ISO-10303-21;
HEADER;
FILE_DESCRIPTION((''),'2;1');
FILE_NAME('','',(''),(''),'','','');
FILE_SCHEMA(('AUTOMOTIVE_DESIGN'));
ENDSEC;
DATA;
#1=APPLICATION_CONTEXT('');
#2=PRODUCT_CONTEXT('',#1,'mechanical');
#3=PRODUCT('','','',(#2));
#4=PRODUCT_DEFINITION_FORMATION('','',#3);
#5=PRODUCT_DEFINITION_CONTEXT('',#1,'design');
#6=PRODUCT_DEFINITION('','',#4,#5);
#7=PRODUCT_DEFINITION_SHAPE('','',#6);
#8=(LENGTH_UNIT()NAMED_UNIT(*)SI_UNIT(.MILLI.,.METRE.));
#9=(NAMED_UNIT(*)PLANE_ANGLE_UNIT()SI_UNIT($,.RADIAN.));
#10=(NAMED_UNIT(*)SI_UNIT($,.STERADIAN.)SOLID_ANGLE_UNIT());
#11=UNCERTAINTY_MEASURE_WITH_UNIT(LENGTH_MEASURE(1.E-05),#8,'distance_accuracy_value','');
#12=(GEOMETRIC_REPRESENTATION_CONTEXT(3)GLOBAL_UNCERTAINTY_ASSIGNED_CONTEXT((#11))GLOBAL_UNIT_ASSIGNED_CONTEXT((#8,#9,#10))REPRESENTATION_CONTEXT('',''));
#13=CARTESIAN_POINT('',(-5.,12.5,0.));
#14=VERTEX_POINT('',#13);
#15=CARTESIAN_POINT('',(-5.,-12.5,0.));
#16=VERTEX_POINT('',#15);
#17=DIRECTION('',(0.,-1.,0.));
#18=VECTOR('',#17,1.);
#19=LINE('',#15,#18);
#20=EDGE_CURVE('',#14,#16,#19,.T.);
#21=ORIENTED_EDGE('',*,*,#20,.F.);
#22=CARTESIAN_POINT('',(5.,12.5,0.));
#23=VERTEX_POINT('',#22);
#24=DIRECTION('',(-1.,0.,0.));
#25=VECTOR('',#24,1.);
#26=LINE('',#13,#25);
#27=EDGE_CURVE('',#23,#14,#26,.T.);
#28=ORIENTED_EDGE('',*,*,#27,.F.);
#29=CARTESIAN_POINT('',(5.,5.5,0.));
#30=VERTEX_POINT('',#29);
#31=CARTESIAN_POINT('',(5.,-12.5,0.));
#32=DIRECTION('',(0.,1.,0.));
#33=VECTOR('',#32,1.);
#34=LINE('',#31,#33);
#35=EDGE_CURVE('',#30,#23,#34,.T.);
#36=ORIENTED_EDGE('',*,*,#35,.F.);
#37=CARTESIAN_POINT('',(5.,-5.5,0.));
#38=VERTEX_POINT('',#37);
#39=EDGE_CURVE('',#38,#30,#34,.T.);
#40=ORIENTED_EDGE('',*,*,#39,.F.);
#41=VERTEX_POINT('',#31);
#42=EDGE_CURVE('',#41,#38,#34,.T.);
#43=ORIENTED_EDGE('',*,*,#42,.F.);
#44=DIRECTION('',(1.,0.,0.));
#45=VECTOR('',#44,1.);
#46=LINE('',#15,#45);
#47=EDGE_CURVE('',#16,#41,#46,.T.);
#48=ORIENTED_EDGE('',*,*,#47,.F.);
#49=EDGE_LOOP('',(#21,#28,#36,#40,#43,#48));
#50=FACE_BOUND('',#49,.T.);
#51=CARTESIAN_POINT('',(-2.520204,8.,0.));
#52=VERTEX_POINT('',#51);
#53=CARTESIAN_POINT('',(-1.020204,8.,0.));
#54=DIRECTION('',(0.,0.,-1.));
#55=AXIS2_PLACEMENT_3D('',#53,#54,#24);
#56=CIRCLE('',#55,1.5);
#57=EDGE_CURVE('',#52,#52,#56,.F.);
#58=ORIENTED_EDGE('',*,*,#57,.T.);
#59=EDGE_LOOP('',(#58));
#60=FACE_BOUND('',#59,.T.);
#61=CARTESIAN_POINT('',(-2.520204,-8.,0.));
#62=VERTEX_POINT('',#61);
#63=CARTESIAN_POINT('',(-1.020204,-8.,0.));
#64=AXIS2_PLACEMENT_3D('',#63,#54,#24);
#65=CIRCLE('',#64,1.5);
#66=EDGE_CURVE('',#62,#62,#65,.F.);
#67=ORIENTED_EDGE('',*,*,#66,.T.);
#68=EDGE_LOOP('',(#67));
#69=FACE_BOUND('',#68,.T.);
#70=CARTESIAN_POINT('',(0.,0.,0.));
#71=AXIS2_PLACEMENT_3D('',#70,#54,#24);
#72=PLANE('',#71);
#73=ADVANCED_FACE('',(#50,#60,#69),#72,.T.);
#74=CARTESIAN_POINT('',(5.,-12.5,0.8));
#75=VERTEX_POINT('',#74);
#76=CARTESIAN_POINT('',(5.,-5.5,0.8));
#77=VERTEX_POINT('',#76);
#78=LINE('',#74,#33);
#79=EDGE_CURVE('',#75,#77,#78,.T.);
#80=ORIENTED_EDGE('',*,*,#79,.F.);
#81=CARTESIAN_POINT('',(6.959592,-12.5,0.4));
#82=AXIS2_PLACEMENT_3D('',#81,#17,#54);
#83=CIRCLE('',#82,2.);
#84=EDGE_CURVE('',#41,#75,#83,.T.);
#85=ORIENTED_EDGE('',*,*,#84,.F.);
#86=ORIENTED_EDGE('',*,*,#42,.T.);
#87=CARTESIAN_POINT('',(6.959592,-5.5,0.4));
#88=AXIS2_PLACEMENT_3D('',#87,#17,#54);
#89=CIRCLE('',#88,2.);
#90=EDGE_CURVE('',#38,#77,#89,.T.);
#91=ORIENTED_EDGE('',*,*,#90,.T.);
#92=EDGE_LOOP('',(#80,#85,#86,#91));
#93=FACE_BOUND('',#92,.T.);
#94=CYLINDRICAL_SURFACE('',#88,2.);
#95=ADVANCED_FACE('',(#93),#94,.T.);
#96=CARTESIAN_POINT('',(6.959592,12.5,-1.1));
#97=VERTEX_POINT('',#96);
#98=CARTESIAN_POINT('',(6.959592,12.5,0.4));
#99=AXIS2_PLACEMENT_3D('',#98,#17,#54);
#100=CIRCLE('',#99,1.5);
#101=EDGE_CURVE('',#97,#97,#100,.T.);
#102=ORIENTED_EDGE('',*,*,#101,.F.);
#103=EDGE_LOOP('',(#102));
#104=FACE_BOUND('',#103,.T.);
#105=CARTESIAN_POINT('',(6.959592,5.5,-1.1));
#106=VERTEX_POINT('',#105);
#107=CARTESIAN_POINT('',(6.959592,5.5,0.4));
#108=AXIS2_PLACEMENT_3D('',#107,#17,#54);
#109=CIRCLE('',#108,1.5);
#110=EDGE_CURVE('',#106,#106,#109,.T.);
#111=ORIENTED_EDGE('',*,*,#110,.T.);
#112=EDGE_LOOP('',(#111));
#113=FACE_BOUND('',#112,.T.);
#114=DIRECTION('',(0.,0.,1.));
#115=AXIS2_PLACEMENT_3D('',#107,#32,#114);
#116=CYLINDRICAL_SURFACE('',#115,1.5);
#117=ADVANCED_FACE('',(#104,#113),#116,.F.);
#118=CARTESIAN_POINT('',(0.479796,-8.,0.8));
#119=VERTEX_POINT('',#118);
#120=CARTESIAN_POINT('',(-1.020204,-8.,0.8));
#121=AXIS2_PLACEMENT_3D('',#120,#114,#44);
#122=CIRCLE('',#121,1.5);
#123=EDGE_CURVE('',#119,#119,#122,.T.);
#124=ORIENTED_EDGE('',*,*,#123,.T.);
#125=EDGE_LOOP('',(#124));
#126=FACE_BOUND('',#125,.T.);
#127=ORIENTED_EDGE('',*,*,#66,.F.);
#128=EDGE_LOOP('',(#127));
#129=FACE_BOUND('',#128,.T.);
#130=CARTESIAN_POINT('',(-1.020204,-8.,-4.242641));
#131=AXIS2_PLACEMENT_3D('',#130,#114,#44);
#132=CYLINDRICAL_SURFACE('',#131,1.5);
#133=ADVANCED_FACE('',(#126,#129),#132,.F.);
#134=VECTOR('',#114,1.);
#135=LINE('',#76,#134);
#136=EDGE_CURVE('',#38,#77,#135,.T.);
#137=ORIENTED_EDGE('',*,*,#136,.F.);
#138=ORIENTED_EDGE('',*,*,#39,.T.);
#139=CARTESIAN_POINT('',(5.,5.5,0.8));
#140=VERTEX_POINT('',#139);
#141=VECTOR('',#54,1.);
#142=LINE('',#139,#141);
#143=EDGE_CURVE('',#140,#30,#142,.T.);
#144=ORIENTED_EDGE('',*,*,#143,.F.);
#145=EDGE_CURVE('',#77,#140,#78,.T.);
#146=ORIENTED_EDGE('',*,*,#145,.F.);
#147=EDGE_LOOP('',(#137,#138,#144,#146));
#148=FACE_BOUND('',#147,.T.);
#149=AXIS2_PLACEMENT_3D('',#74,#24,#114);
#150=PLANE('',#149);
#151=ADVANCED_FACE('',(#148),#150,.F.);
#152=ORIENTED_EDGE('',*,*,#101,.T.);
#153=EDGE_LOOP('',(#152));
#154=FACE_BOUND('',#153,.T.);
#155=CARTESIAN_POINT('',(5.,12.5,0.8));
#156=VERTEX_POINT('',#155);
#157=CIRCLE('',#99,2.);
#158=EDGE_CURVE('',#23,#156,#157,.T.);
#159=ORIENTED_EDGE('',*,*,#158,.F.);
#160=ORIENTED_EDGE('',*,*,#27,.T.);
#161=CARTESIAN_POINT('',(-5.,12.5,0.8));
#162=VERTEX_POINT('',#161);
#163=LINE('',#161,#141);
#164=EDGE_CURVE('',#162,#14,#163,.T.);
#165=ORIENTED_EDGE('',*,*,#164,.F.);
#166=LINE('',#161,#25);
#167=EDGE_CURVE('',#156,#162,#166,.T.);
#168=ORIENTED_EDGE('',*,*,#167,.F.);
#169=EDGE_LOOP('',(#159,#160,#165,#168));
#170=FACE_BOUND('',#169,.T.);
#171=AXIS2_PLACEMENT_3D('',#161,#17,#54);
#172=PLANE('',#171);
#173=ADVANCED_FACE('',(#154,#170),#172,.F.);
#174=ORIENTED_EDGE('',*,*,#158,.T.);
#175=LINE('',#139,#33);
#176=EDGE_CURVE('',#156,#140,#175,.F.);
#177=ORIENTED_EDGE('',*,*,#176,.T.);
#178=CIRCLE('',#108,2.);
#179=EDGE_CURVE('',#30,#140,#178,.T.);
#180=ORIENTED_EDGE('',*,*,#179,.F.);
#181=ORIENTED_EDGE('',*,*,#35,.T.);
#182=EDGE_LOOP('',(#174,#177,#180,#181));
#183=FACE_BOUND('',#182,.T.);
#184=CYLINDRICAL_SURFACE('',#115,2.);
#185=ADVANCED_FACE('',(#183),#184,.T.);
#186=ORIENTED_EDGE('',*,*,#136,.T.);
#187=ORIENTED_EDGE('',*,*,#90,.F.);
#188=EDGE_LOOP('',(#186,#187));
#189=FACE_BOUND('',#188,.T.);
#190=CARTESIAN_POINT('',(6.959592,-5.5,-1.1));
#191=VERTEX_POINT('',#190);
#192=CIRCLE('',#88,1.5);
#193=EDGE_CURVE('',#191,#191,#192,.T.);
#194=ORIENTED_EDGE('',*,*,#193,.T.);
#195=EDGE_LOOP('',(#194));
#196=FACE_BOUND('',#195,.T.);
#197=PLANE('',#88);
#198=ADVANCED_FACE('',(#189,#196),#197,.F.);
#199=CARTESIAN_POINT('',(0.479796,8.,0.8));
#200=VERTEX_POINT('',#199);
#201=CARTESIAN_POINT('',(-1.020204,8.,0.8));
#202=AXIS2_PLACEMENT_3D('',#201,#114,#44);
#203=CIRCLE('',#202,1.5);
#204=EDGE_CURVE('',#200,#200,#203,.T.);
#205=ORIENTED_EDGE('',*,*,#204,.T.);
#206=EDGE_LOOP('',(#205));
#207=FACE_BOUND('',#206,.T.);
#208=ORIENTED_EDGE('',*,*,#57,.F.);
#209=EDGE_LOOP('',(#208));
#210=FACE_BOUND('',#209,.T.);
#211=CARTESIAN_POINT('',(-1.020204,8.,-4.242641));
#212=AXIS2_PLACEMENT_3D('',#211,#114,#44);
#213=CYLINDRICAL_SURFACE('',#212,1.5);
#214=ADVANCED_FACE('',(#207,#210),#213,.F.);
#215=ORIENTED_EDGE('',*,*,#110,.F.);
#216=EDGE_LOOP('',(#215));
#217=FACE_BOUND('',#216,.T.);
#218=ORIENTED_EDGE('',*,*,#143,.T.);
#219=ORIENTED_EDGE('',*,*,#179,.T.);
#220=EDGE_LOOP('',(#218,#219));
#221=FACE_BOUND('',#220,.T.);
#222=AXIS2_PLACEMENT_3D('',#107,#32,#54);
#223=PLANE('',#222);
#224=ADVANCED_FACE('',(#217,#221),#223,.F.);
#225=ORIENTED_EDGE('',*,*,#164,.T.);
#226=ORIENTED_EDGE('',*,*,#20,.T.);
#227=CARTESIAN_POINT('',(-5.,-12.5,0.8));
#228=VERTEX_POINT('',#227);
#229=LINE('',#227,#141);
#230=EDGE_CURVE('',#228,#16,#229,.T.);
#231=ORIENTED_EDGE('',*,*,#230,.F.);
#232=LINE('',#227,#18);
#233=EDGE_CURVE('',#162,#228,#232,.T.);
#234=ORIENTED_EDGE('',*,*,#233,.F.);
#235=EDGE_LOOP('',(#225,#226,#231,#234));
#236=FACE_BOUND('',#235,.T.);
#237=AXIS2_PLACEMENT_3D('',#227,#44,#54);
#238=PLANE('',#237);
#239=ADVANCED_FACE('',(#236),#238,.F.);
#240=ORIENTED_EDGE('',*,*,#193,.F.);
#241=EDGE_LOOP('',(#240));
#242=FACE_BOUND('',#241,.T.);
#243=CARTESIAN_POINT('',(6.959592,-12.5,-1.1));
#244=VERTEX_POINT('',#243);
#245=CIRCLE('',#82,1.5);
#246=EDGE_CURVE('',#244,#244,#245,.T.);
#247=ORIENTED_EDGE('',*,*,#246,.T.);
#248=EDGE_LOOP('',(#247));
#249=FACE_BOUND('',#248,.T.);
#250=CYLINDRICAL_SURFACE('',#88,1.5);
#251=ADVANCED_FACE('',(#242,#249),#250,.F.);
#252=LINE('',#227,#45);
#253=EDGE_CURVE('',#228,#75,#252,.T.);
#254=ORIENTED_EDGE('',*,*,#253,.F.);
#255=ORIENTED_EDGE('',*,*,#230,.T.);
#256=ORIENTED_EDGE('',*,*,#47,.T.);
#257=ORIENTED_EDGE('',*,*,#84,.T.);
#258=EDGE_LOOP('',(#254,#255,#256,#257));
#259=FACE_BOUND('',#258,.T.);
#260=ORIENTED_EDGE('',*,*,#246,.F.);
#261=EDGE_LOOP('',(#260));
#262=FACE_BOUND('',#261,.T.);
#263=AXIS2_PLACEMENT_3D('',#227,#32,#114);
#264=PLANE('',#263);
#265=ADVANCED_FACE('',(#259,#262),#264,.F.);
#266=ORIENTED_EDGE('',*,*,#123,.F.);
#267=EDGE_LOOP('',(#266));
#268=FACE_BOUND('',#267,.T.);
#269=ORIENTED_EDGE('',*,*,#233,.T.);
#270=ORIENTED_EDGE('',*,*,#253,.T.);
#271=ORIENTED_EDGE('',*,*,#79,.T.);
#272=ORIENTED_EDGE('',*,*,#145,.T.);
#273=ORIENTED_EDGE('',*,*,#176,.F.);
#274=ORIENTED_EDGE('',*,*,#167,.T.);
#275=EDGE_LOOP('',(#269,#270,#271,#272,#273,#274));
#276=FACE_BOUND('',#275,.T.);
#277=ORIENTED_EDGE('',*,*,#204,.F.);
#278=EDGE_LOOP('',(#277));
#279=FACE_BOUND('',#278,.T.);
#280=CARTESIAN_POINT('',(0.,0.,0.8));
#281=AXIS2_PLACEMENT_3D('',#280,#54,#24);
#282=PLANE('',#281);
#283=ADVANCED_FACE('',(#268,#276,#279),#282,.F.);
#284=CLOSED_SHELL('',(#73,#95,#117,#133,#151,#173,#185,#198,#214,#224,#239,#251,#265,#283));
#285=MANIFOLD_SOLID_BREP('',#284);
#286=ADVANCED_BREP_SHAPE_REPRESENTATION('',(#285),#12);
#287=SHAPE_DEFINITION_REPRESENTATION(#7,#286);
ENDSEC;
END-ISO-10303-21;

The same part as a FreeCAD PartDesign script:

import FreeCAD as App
import Part
import Sketcher
from FreeCAD import Vector

doc = App.newDocument("Part")
body = doc.addObject("PartDesign::Body", "Body")

# Sketch on XY plane
sketch1 = body.newObject("Sketcher::SketchObject", "Sketch")
sketch1.AttachmentSupport = (doc.getObject("XY_Plane"), [""])
sketch1.MapMode = "FlatFace"
sketch1.addGeometry(Part.LineSegment(Vector(-5, 12, 0), Vector(-5, -12, 0)), False)
sketch1.addGeometry(Part.LineSegment(Vector(-5, -12, 0), Vector(5, -12, 0)), False)
sketch1.addGeometry(Part.LineSegment(Vector(5, -12, 0), Vector(5, 12, 0)), False)
sketch1.addGeometry(Part.LineSegment(Vector(5, 12, 0), Vector(-5, 12, 0)), False)
sketch1.addConstraint(Sketcher.Constraint("Coincident", 0, 2, 1, 1))
sketch1.addConstraint(Sketcher.Constraint("Coincident", 1, 2, 2, 1))
sketch1.addConstraint(Sketcher.Constraint("Coincident", 2, 2, 3, 1))
sketch1.addConstraint(Sketcher.Constraint("Coincident", 3, 2, 0, 1))
sketch1.addConstraint(Sketcher.Constraint("Vertical", 0))
sketch1.addConstraint(Sketcher.Constraint("Horizontal", 1))
sketch1.addConstraint(Sketcher.Constraint("Vertical", 2))
sketch1.addConstraint(Sketcher.Constraint("Horizontal", 3))
sketch1.addConstraint(Sketcher.Constraint("Symmetric", 0, 2, 2, 2, -1, 1))
sketch1.addConstraint(Sketcher.Constraint("DistanceX", 1, 1, 1, 2, 10.0))
sketch1.addConstraint(Sketcher.Constraint("DistanceY", 0, 2, 0, 1, 25.0))
pad1 = body.newObject("PartDesign::Pad", "Pad")
pad1.Profile = sketch1
pad1.Length = 0.8

# Sketch on XZ plane
sketch2 = body.newObject("Sketcher::SketchObject", "Sketch001")
sketch2.AttachmentSupport = (doc.getObject("XZ_Plane"), [""])
sketch2.MapMode = "FlatFace"
sketch2.AttachmentOffset = App.Placement(Vector(0, 0, 12.5), App.Rotation())
sketch2.addGeometry(Part.Circle(Vector(7, 0.4, 0), Vector(0, 0, 1), 2), False)
sketch2.addGeometry(Part.Circle(Vector(7, 0.4, 0), Vector(0, 0, 1), 1.5), False)
sketch2.addConstraint(Sketcher.Constraint("Coincident", 1, 3, 0, 3))
sketch2.addConstraint(Sketcher.Constraint("Diameter", 0, 4.0))
sketch2.addConstraint(Sketcher.Constraint("Diameter", 1, 3.0))
sketch2.addConstraint(Sketcher.Constraint("DistanceY", -1, 1, 0, 3, 0.4))
sketch2.addConstraint(Sketcher.Constraint("DistanceX", -1, 1, 0, 3, 6.959592))
pad2 = body.newObject("PartDesign::Pad", "Pad001")
pad2.Profile = sketch2
pad2.Length = 7
pad2.Reversed = True
doc.recompute()

mirrored = body.newObject("PartDesign::Mirrored", "Mirrored")
mirrored.Originals = [pad2]
mirrored.MirrorPlane = (doc.getObject("XZ_Plane"), [""])
body.Tip = mirrored

# Sketch on XY plane
sketch3 = body.newObject("Sketcher::SketchObject", "Sketch002")
sketch3.AttachmentSupport = (doc.getObject("XY_Plane"), [""])
sketch3.MapMode = "FlatFace"
sketch3.AttachmentOffset = App.Placement(Vector(0, 0, 0.8), App.Rotation())
sketch3.addGeometry(Part.Circle(Vector(-1, 8, 0), Vector(0, 0, 1), 1.5), False)
sketch3.addGeometry(Part.Circle(Vector(-1, -8, 0), Vector(0, 0, 1), 1.5), False)
sketch3.addConstraint(Sketcher.Constraint("Equal", 0, 1))
sketch3.addConstraint(Sketcher.Constraint("Symmetric", 0, 3, 1, 3, -1))
sketch3.addConstraint(Sketcher.Constraint("Diameter", 0, 3.0))
sketch3.addConstraint(Sketcher.Constraint("DistanceY", -1, 1, 0, 3, 8.0))
sketch3.addConstraint(Sketcher.Constraint("DistanceX", 0, 3, -1, 1, 1.020204))
pocket1 = body.newObject("PartDesign::Pocket", "Pocket")
pocket1.Profile = sketch3
pocket1.Length = 0.8

doc.recompute()
